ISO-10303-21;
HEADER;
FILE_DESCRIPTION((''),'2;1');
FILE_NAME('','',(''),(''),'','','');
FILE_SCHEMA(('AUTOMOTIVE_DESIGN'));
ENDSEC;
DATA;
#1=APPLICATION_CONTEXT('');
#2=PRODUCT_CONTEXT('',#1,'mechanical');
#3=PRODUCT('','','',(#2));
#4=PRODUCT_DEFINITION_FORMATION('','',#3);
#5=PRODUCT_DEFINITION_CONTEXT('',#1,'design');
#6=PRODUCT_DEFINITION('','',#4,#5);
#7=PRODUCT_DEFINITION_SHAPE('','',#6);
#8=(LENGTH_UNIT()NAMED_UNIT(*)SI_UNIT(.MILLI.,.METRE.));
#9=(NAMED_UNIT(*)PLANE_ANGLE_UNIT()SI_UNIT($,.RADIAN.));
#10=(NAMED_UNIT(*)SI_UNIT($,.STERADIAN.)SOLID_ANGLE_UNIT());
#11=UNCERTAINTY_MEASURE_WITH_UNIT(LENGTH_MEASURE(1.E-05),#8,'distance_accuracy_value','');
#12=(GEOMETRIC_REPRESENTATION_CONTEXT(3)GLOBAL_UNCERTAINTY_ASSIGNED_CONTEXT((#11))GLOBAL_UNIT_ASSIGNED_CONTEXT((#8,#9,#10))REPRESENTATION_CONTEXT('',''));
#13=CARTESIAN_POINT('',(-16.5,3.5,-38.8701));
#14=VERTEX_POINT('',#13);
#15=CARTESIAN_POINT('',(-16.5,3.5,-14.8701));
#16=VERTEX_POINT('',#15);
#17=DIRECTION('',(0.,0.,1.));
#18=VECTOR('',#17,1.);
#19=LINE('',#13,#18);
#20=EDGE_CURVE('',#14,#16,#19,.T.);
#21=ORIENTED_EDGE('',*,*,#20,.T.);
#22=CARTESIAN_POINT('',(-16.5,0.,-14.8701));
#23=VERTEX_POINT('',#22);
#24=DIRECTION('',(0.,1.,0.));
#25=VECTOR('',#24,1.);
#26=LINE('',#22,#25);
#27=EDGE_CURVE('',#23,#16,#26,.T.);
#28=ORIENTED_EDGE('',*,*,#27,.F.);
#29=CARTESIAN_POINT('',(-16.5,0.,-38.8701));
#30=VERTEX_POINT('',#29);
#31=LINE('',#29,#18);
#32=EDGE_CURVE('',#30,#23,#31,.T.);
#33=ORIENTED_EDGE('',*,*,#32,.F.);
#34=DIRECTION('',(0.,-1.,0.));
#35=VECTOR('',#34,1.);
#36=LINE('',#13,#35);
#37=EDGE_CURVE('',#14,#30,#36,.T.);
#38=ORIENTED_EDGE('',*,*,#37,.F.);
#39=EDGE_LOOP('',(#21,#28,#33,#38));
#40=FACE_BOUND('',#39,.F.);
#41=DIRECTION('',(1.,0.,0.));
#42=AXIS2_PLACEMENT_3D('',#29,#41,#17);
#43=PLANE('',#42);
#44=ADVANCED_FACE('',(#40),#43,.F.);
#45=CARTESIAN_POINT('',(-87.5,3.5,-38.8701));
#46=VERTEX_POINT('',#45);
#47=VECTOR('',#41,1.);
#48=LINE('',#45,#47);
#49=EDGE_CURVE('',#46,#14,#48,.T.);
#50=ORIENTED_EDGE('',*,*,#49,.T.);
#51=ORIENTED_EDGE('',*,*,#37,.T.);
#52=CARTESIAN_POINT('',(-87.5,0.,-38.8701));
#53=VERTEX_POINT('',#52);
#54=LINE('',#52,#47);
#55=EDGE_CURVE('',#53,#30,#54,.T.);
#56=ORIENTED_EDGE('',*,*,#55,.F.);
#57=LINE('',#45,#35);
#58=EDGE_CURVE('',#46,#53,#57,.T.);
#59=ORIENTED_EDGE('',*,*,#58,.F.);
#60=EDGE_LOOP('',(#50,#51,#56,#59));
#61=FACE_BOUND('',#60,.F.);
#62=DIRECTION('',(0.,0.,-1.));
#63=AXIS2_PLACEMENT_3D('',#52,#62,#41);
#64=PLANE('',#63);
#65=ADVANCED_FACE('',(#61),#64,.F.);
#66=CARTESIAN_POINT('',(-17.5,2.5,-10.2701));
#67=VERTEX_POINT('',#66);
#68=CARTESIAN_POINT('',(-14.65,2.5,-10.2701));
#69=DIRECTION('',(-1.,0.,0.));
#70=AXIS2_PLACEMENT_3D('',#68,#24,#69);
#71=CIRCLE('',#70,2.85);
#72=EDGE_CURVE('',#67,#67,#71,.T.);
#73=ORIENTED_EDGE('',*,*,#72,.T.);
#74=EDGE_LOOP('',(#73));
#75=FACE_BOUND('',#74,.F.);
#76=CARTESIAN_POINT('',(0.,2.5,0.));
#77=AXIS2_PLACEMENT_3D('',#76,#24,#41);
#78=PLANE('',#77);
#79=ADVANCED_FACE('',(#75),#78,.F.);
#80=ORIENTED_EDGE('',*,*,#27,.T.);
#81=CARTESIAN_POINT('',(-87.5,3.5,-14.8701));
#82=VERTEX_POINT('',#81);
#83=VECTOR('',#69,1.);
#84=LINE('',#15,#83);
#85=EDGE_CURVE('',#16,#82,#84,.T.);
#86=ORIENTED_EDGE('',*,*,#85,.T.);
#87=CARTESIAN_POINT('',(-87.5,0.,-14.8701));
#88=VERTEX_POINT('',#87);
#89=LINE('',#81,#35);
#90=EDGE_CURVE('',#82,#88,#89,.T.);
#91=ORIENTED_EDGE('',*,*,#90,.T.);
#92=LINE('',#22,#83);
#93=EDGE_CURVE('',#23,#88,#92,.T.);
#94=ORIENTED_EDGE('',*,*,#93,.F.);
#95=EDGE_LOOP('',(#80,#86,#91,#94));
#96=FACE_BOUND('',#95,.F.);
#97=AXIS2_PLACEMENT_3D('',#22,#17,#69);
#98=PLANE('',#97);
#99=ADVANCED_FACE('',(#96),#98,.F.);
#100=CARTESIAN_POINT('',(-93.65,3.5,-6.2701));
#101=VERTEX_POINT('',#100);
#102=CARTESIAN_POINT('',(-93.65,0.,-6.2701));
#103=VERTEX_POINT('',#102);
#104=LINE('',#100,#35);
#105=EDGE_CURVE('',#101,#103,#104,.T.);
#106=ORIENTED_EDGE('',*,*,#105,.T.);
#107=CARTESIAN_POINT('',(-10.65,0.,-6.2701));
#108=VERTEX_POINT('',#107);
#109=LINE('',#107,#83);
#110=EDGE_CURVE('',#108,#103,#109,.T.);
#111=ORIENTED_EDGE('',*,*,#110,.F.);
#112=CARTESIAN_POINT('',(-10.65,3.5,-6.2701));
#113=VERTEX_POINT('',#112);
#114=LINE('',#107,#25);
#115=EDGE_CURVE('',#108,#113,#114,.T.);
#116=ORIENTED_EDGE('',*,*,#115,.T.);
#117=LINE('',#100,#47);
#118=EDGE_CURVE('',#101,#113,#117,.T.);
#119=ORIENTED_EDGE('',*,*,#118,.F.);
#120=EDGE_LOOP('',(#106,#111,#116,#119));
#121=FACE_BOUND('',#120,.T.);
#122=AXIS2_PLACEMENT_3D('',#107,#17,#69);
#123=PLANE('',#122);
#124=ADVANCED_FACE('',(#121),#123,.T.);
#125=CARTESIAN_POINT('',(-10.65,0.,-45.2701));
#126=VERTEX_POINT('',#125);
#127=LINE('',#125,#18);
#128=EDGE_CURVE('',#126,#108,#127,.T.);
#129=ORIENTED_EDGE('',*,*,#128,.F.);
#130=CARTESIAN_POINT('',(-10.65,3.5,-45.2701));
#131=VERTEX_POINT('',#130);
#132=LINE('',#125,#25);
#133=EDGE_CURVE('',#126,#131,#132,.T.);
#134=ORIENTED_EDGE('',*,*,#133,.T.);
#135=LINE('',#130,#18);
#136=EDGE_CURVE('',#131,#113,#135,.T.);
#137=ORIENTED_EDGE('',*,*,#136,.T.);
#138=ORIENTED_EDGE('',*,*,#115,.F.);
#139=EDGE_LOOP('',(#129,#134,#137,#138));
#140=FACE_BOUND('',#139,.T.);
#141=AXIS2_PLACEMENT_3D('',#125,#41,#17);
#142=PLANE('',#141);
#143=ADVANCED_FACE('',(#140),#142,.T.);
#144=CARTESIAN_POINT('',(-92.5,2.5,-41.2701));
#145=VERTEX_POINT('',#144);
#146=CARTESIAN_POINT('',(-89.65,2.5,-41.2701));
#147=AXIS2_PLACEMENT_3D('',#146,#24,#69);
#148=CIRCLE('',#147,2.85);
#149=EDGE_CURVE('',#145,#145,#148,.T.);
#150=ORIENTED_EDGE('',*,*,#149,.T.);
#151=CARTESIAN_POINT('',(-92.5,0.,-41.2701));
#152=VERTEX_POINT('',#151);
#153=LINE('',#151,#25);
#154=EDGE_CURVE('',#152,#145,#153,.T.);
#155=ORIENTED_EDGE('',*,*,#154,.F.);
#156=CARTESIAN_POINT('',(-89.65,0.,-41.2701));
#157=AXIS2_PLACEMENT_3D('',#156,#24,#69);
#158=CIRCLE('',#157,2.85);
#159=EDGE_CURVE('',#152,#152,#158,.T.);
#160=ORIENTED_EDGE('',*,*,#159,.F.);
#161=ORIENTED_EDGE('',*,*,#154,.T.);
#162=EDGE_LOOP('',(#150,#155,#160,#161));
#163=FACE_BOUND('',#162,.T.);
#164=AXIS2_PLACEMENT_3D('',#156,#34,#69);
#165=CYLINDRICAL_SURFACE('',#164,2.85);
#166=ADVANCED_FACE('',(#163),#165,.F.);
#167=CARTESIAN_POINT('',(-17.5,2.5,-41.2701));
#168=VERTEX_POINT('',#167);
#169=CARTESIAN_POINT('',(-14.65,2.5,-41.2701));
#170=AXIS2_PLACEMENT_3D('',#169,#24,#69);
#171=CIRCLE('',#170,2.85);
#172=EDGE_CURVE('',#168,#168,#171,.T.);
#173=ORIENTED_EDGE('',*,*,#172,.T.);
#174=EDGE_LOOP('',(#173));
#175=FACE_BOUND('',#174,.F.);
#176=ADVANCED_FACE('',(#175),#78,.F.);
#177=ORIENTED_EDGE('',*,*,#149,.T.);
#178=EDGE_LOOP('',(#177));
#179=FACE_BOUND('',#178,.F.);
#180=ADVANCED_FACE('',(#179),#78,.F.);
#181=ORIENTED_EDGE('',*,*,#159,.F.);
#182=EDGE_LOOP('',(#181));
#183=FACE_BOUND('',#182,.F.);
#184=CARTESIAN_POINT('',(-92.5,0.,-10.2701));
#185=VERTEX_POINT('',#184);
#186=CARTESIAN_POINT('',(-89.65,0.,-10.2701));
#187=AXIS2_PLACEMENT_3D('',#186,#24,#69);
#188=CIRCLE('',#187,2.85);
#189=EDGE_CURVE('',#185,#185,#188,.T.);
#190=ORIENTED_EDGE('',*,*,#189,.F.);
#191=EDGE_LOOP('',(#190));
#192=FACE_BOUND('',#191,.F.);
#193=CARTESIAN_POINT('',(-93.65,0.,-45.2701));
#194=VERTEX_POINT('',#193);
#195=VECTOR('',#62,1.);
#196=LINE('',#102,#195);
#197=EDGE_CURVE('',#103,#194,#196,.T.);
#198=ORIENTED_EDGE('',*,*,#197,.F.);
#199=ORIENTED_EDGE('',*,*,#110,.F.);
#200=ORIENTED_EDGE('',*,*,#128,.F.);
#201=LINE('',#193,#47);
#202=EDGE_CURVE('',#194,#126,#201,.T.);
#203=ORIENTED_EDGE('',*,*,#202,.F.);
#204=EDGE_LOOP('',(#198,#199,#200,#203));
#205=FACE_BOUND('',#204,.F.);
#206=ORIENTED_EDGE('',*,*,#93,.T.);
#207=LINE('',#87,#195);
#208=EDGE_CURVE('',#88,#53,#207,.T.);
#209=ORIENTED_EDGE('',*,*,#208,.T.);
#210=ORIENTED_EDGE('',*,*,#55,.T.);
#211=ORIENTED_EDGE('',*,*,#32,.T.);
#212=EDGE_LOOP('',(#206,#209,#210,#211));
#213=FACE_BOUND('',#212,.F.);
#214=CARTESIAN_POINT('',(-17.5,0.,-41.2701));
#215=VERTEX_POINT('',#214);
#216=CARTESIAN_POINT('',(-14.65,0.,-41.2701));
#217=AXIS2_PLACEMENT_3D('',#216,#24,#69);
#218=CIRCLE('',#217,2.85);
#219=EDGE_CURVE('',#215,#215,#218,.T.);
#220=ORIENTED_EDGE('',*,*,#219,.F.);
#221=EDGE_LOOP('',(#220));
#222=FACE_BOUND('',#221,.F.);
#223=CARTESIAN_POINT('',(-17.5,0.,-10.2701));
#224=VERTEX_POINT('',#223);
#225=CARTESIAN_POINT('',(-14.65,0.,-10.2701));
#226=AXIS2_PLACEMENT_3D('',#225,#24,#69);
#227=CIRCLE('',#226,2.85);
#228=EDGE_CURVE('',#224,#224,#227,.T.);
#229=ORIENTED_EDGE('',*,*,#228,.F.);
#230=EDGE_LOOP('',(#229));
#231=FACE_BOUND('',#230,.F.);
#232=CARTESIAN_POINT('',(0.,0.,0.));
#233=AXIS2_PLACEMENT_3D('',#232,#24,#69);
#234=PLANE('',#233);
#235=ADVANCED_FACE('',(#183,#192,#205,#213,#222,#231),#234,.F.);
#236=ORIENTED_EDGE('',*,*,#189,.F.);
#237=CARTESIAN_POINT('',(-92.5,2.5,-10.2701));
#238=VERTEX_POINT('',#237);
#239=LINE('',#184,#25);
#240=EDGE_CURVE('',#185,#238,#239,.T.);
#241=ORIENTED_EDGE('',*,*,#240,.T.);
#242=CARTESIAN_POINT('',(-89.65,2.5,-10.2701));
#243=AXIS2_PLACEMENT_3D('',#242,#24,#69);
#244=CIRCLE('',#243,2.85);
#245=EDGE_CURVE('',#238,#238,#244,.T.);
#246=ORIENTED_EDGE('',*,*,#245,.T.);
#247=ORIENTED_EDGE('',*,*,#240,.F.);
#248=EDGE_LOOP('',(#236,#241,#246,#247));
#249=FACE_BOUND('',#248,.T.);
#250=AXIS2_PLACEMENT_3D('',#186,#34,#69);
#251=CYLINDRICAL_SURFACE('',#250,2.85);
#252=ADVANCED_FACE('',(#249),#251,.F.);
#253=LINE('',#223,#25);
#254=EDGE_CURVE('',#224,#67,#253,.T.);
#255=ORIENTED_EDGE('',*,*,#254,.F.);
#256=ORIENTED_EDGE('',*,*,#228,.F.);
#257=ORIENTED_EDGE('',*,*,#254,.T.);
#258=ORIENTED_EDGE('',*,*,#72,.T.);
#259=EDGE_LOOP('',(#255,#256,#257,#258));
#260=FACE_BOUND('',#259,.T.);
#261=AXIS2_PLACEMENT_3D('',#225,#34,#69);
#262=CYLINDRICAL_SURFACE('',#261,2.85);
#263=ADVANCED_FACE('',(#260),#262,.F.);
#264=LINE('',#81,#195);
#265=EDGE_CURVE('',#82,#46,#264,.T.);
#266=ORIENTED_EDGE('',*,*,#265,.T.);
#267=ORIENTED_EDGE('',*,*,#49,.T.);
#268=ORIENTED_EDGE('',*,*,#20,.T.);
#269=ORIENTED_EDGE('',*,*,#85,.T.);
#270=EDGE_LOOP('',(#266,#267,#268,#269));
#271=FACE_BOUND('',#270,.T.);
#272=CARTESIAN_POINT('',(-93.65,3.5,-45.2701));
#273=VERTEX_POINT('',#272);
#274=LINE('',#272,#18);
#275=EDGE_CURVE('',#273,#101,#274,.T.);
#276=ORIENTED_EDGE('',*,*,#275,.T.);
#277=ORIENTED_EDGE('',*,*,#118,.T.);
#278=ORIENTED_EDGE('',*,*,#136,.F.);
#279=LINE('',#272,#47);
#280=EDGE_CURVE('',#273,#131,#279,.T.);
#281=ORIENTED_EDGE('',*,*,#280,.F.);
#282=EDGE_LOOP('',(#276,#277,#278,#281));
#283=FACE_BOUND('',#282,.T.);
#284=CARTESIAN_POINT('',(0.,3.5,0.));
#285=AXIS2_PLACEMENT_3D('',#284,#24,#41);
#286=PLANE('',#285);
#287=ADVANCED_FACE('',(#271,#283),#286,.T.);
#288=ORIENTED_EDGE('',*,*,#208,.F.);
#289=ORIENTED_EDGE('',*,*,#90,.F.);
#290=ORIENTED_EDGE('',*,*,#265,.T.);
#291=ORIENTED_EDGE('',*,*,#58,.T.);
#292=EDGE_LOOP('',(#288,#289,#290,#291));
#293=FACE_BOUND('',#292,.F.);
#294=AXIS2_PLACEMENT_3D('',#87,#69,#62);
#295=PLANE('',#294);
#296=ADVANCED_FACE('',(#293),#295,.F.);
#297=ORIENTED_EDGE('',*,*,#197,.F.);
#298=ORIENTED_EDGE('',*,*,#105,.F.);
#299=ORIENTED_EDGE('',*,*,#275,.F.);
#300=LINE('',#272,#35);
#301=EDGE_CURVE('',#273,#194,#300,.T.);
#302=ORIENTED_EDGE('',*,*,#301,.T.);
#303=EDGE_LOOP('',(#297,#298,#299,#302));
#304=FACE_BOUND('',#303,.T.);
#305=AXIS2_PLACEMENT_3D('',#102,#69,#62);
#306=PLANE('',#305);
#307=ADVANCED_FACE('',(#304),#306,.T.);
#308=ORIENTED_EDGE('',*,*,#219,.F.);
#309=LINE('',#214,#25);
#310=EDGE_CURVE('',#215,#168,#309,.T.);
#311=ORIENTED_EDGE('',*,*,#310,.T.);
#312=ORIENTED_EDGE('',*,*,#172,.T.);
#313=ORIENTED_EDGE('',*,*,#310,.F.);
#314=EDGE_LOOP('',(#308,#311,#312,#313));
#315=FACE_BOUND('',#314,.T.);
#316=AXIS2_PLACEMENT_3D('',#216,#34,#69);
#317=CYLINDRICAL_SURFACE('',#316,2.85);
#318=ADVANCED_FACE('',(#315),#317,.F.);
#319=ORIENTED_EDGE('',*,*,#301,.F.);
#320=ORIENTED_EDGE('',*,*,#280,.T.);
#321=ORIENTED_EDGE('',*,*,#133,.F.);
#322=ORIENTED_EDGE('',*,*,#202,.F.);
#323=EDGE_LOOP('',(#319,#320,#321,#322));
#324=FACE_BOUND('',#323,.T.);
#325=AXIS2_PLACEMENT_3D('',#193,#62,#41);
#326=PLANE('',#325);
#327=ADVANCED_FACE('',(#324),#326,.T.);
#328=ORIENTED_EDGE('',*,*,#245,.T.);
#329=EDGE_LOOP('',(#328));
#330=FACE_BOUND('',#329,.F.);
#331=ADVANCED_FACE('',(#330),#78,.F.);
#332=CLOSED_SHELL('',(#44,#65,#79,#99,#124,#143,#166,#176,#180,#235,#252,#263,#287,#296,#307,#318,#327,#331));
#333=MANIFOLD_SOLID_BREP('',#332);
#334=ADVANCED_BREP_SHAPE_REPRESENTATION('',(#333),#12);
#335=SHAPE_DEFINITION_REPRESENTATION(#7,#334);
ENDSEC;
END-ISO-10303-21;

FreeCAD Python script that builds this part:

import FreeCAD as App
import Part
import Sketcher
Q = App.Units.Quantity

doc = App.newDocument("Part")
body = doc.addObject("PartDesign::Body", "Body")

# Sketch on XZ plane
sketch1 = doc.addObject("Sketcher::SketchObject", "Sketch")
body.addObject(sketch1)
sketch1.AttachmentSupport = (doc.XZ_Plane, [""])
sketch1.MapMode = "FlatFace"
sketch1.addGeometry([
    Part.LineSegment(App.Vector(-93.7, -6.3, 0), App.Vector(-10.7, -6.3, 0)),  # 0
    Part.LineSegment(App.Vector(-10.7, -6.3, 0), App.Vector(-10.7, -45.3, 0)),  # 1
    Part.LineSegment(App.Vector(-10.7, -45.3, 0), App.Vector(-93.7, -45.3, 0)),  # 2
    Part.LineSegment(App.Vector(-93.7, -45.3, 0), App.Vector(-93.7, -6.3, 0)),  # 3
    Part.Circle(App.Vector(-14.7, -41.3, 0), App.Vector(0, 0, 1), 2.9),  # 4
    Part.LineSegment(App.Vector(-16.5, -38.9, 0), App.Vector(-16.5, -14.9, 0)),  # 5
    Part.LineSegment(App.Vector(-16.5, -14.9, 0), App.Vector(-87.5, -14.9, 0)),  # 6
    Part.LineSegment(App.Vector(-87.5, -14.9, 0), App.Vector(-87.5, -38.9, 0)),  # 7
    Part.LineSegment(App.Vector(-87.5, -38.9, 0), App.Vector(-16.5, -38.9, 0)),  # 8
    Part.Circle(App.Vector(-89.7, -41.3, 0), App.Vector(0, 0, 1), 2.9),  # 9
    Part.Circle(App.Vector(-14.7, -10.3, 0), App.Vector(0, 0, 1), 2.9),  # 10
    Part.Circle(App.Vector(-89.7, -10.3, 0), App.Vector(0, 0, 1), 2.9),  # 11
], False)
sketch1.addConstraint([
    Sketcher.Constraint("Coincident", 0, 2, 1, 1),
    Sketcher.Constraint("Coincident", 1, 2, 2, 1),
    Sketcher.Constraint("Coincident", 2, 2, 3, 1),
    Sketcher.Constraint("Coincident", 3, 2, 0, 1),
    Sketcher.Constraint("Coincident", 5, 2, 6, 1),
    Sketcher.Constraint("Coincident", 6, 2, 7, 1),
    Sketcher.Constraint("Coincident", 7, 2, 8, 1),
    Sketcher.Constraint("Coincident", 8, 2, 5, 1),
    Sketcher.Constraint("Horizontal", 0),
    Sketcher.Constraint("Vertical", 1),
    Sketcher.Constraint("Horizontal", 2),
    Sketcher.Constraint("Vertical", 3),
    Sketcher.Constraint("Vertical", 5),
    Sketcher.Constraint("Horizontal", 6),
    Sketcher.Constraint("Vertical", 7),
    Sketcher.Constraint("Horizontal", 8),
    Sketcher.Constraint("Equal", 4, 9),
    Sketcher.Constraint("Equal", 9, 10),
    Sketcher.Constraint("Equal", 10, 11),
    Sketcher.Constraint("Horizontal", 4, 3, 9, 3),
    Sketcher.Constraint("Horizontal", 10, 3, 11, 3),
    Sketcher.Constraint("Vertical", 4, 3, 10, 3),
    Sketcher.Constraint("Vertical", 9, 3, 11, 3),
    Sketcher.Constraint("Diameter", 4, Q("5.7 mm")),
    Sketcher.Constraint("DistanceX", 10, 3, 0, 2, Q("4 mm")),
    Sketcher.Constraint("DistanceY", 10, 3, 0, 2, Q("4 mm")),
    Sketcher.Constraint("DistanceY", 1, 2, 4, 3, Q("4 mm")),
    Sketcher.Constraint("DistanceX", 2, 2, 9, 3, Q("4 mm")),
    Sketcher.Constraint("DistanceX", 0, 1, 0, 2, Q("83 mm")),
    Sketcher.Constraint("DistanceX", 6, 2, 6, 1, Q("71 mm")),
    Sketcher.Constraint("DistanceY", 1, 2, 1, 1, Q("39 mm")),
    Sketcher.Constraint("DistanceY", 5, 1, 5, 2, Q("24 mm")),
    Sketcher.Constraint("DistanceX", 5, 2, -1, 1, Q("16.5 mm")),
    Sketcher.Constraint("DistanceY", 5, 2, 10, 3, Q("4.6 mm")),
    Sketcher.Constraint("DistanceX", 4, 3, -1, 1, Q("14.65 mm")),
    Sketcher.Constraint("DistanceY", 4, 3, -1, 1, Q("41.27 mm")),
])
pad1 = doc.addObject("PartDesign::Pad", "Pad")
body.addObject(pad1)
pad1.Profile = sketch1
pad1.Length = 2.5
pad1.Reversed = True

# Sketch on XZ plane
sketch2 = doc.addObject("Sketcher::SketchObject", "Sketch001")
body.addObject(sketch2)
sketch2.AttachmentSupport = (doc.XZ_Plane, [""])
sketch2.MapMode = "FlatFace"
sketch2.AttachmentOffset = App.Placement(App.Vector(0, 0, -2.5), App.Rotation())
sketch2.addGeometry([
    Part.LineSegment(App.Vector(-94, -45, 0), App.Vector(-94, -6, 0)),  # 0
    Part.LineSegment(App.Vector(-94, -6, 0), App.Vector(-11, -6, 0)),  # 1
    Part.LineSegment(App.Vector(-11, -6, 0), App.Vector(-11, -45, 0)),  # 2
    Part.LineSegment(App.Vector(-11, -45, 0), App.Vector(-94, -45, 0)),  # 3
    Part.LineSegment(App.Vector(-16, -15, 0), App.Vector(-88, -15, 0)),  # 4
    Part.LineSegment(App.Vector(-88, -15, 0), App.Vector(-88, -39, 0)),  # 5
    Part.LineSegment(App.Vector(-88, -39, 0), App.Vector(-16, -39, 0)),  # 6
    Part.LineSegment(App.Vector(-16, -39, 0), App.Vector(-16, -15, 0)),  # 7
], False)
sketch2.addConstraint([
    Sketcher.Constraint("Coincident", 0, 2, 1, 1),
    Sketcher.Constraint("Coincident", 1, 2, 2, 1),
    Sketcher.Constraint("Coincident", 2, 2, 3, 1),
    Sketcher.Constraint("Coincident", 3, 2, 0, 1),
    Sketcher.Constraint("Coincident", 4, 2, 5, 1),
    Sketcher.Constraint("Coincident", 5, 2, 6, 1),
    Sketcher.Constraint("Coincident", 6, 2, 7, 1),
    Sketcher.Constraint("Coincident", 7, 2, 4, 1),
    Sketcher.Constraint("Vertical", 0),
    Sketcher.Constraint("Horizontal", 1),
    Sketcher.Constraint("Vertical", 2),
    Sketcher.Constraint("Horizontal", 3),
    Sketcher.Constraint("Horizontal", 4),
    Sketcher.Constraint("Vertical", 5),
    Sketcher.Constraint("Horizontal", 6),
    Sketcher.Constraint("Vertical", 7),
    Sketcher.Constraint("DistanceX", 1, 1, 1, 2, Q("83 mm")),
    Sketcher.Constraint("DistanceX", 4, 2, 4, 1, Q("71 mm")),
    Sketcher.Constraint("DistanceY", 0, 1, 0, 2, Q("39 mm")),
    Sketcher.Constraint("DistanceY", 5, 2, 5, 1, Q("24 mm")),
    Sketcher.Constraint("DistanceX", 4, 2, -1, 1, Q("87.5 mm")),
    Sketcher.Constraint("DistanceY", 4, 2, 0, 2, Q("8.6 mm")),
    Sketcher.Constraint("DistanceX", 0, 2, -1, 1, Q("93.65 mm")),
    Sketcher.Constraint("DistanceY", 0, 2, -1, 1, Q("6.27 mm")),
])
pad2 = doc.addObject("PartDesign::Pad", "Pad001")
body.addObject(pad2)
pad2.Profile = sketch2
pad2.Length = 1
pad2.Reversed = True

doc.recompute()
